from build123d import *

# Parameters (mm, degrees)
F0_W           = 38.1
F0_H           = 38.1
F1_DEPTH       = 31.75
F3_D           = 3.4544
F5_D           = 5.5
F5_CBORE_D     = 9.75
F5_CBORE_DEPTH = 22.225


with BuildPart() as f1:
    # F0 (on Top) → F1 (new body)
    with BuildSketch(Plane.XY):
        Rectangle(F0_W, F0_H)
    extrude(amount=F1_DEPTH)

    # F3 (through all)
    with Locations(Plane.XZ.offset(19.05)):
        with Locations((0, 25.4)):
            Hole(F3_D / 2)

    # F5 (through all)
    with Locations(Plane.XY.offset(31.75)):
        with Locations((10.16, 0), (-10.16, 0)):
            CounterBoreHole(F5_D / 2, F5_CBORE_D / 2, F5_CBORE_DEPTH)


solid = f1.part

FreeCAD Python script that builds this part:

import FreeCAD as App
import Part
import Sketcher
Q = App.Units.Quantity

doc = App.newDocument("Part")
body = doc.addObject("PartDesign::Body", "Body")

# Sketch on XY plane
sketch1 = body.newObject("Sketcher::SketchObject", "Sketch")
sketch1.AttachmentSupport = (doc.getObject("XY_Plane"), [""])
sketch1.MapMode = "FlatFace"
sketch1.addGeometry([
    Part.LineSegment(App.Vector(-19, 19, 0), App.Vector(-19, -19, 0)),
    Part.LineSegment(App.Vector(-19, -19, 0), App.Vector(19, -19, 0)),
    Part.LineSegment(App.Vector(19, -19, 0), App.Vector(19, 19, 0)),
    Part.LineSegment(App.Vector(19, 19, 0), App.Vector(-19, 19, 0)),
], False)
sketch1.addConstraint([
    Sketcher.Constraint("Coincident", 0, 2, 1, 1),
    Sketcher.Constraint("Coincident", 1, 2, 2, 1),
    Sketcher.Constraint("Coincident", 2, 2, 3, 1),
    Sketcher.Constraint("Coincident", 3, 2, 0, 1),
    Sketcher.Constraint("Vertical", 0),
    Sketcher.Constraint("Horizontal", 1),
    Sketcher.Constraint("Vertical", 2),
    Sketcher.Constraint("Horizontal", 3),
    Sketcher.Constraint("Symmetric", 0, 2, 2, 2, -1, 1),
    Sketcher.Constraint("Equal", 3, 0),
    Sketcher.Constraint("DistanceX", 1, 1, 1, 2, Q("1.5 in")),
])
pad1 = body.newObject("PartDesign::Pad", "Pad")
pad1.Profile = sketch1
pad1.Length = Q("1.25 in")

# Sketch on XZ plane
sketch2 = body.newObject("Sketcher::SketchObject", "Sketch001")
sketch2.AttachmentSupport = (doc.getObject("XZ_Plane"), [""])
sketch2.MapMode = "FlatFace"
sketch2.AttachmentOffset = App.Placement(App.Vector(0, 0, 0.75 * 25.4), App.Rotation())
sketch2.addGeometry(Part.Circle(App.Vector(0, 25.4, 0), App.Vector(0, 0, 1), 1.7), False)
sketch2.addConstraint([
    Sketcher.Constraint("PointOnObject", 0, 3, -2),
    Sketcher.Constraint("Diameter", 0, Q("0.136 in")),
    Sketcher.Constraint("DistanceY", -1, 1, 0, 3, Q("1 in")),
])
doc.recompute()
hole = body.newObject("PartDesign::Hole", "Hole")
hole.Profile = sketch2
hole.ThreadType = "None"
hole.Diameter = Q("0.136 in")
hole.DepthType = "ThroughAll"

# Sketch on XY plane
sketch3 = body.newObject("Sketcher::SketchObject", "Sketch002")
sketch3.AttachmentSupport = (doc.getObject("XY_Plane"), [""])
sketch3.MapMode = "FlatFace"
sketch3.AttachmentOffset = App.Placement(App.Vector(0, 0, 1.25 * 25.4), App.Rotation())
sketch3.addGeometry([
    Part.Circle(App.Vector(10.2, 0, 0), App.Vector(0, 0, 1), 2.8),
    Part.Circle(App.Vector(-10.2, 0, 0), App.Vector(0, 0, 1), 2.8),
], False)
sketch3.addConstraint([
    Sketcher.Constraint("Equal", 0, 1),
    Sketcher.Constraint("Symmetric", 0, 3, 1, 3, -1, 1),
    Sketcher.Constraint("PointOnObject", 0, 3, -1),
    Sketcher.Constraint("DistanceX", -1, 1, 0, 3, Q("0.4 in")),
    Sketcher.Constraint("Diameter", 0, 5.5),
])
doc.recompute()
hole2 = body.newObject("PartDesign::Hole", "Hole001")
hole2.Profile = sketch3
hole2.ThreadType = "None"
hole2.Diameter = 5.5
hole2.DepthType = "ThroughAll"
hole2.HoleCutType = "Counterbore"
hole2.HoleCutDiameter = 9.75
hole2.HoleCutDepth = Q("0.875 in")

doc.recompute()
